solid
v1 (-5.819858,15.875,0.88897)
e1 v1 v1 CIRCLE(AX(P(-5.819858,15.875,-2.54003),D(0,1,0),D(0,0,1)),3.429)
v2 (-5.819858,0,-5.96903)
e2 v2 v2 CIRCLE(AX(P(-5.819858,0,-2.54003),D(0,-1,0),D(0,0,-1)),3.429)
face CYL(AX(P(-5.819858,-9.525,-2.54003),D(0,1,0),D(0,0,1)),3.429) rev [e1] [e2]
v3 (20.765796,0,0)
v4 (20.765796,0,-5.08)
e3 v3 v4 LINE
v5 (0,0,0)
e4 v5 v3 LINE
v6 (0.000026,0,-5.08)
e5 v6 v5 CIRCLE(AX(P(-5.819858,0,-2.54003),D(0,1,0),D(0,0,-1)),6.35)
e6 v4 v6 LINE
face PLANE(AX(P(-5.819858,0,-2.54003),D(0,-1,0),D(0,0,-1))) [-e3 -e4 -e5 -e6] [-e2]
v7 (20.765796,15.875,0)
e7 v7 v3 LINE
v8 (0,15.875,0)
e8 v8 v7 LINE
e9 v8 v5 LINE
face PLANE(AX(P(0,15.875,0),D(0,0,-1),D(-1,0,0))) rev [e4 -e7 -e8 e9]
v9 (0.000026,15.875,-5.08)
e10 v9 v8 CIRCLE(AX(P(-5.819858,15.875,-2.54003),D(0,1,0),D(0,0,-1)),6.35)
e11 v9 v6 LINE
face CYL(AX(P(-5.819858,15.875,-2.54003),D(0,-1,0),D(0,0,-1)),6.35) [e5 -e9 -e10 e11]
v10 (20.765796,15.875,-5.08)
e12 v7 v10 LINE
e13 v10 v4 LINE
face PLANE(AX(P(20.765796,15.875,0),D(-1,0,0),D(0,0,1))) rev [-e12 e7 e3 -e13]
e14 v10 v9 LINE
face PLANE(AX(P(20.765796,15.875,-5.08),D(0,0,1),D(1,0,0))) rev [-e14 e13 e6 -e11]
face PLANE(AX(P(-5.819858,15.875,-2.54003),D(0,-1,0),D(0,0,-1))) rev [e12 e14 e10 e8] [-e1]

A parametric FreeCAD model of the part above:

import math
import FreeCAD as App
import Part
import Sketcher
Q = App.Units.Quantity

doc = App.newDocument("Part")
params = doc.addObject("Spreadsheet::Sheet", "Params")
for row, (alias, value) in enumerate([
    ("sketch1_radius", "0.25 in"),
    ("sketch1_height", "0.2 in"),
    ("pad1_length", "0.625 in"),
    ("sketch2_diameter", "0.27 in"),
    ("pocket1_length", "1 in"),
], start=1):
    params.set(f"A{row}", alias)
    params.set(f"B{row}", "=" + value)
    params.setAlias(f"B{row}", alias)

body = doc.addObject("PartDesign::Body", "Body")

# Sketch on XZ plane
sketch1 = body.newObject("Sketcher::SketchObject", "Sketch")
sketch1.AttachmentSupport = (doc.getObject("XZ_Plane"), [""])
sketch1.MapMode = "FlatFace"
sketch1.addGeometry([
    Part.LineSegment(App.Vector(0, 0, 0), App.Vector(21, 0, 0)),
    Part.LineSegment(App.Vector(21, 0, 0), App.Vector(21, -5, 0)),
    Part.LineSegment(App.Vector(21, -5, 0), App.Vector(0, -5, 0)),
    Part.ArcOfCircle(Part.Circle(App.Vector(-6, -3, 0), App.Vector(0, 0, 1), 6), math.radians(24), math.radians(336)),
], False)
sketch1.addConstraint([
    Sketcher.Constraint("Coincident", 0, 2, 1, 1),
    Sketcher.Constraint("Coincident", 1, 2, 2, 1),
    Sketcher.Constraint("Coincident", 2, 2, 3, 2),
    Sketcher.Constraint("Coincident", 3, 1, 0, 1),
    Sketcher.Constraint("Horizontal", 0),
    Sketcher.Constraint("Vertical", 1),
    Sketcher.Constraint("Horizontal", 2),
    Sketcher.Constraint("Coincident", 3, 1, -1, 1),
    Sketcher.Constraint("Radius", 3, Q("0.25 in")),
    Sketcher.Constraint("DistanceY", 1, 2, 1, 1, Q("0.2 in")),
    Sketcher.Constraint("DistanceX", 2, 2, 2, 1, Q("20.76577 mm")),
    Sketcher.Constraint("DistanceX", 0, 1, 0, 2, Q("20.765796 mm")),
])
sketch1.setExpression("Constraints[8]", "Params.sketch1_radius")
sketch1.setExpression("Constraints[9]", "Params.sketch1_height")
pad1 = body.newObject("PartDesign::Pad", "Pad")
pad1.Profile = sketch1
pad1.setExpression("Length", "Params.pad1_length")
pad1.Reversed = True

# Sketch on XZ plane
sketch2 = body.newObject("Sketcher::SketchObject", "Sketch001")
sketch2.AttachmentSupport = (doc.getObject("XZ_Plane"), [""])
sketch2.MapMode = "FlatFace"
sketch2.AttachmentOffset = App.Placement(App.Vector(0, 0, -0.625 * 25.4), App.Rotation())
sketch2.addGeometry(Part.Circle(App.Vector(-5.8, -2.5, 0), App.Vector(0, 0, 1), 3.4), False)
sketch2.addConstraint([
    Sketcher.Constraint("Diameter", 0, Q("0.27 in")),
    Sketcher.Constraint("DistanceX", 0, 3, -1, 1, Q("5.819858 mm")),
    Sketcher.Constraint("DistanceY", 0, 3, -1, 1, Q("2.54003 mm")),
])
sketch2.setExpression("Constraints[0]", "Params.sketch2_diameter")
pocket1 = body.newObject("PartDesign::Pocket", "Pocket")
pocket1.Profile = sketch2
pocket1.setExpression("Length", "Params.pocket1_length")
pocket1.Reversed = True

doc.recompute()
